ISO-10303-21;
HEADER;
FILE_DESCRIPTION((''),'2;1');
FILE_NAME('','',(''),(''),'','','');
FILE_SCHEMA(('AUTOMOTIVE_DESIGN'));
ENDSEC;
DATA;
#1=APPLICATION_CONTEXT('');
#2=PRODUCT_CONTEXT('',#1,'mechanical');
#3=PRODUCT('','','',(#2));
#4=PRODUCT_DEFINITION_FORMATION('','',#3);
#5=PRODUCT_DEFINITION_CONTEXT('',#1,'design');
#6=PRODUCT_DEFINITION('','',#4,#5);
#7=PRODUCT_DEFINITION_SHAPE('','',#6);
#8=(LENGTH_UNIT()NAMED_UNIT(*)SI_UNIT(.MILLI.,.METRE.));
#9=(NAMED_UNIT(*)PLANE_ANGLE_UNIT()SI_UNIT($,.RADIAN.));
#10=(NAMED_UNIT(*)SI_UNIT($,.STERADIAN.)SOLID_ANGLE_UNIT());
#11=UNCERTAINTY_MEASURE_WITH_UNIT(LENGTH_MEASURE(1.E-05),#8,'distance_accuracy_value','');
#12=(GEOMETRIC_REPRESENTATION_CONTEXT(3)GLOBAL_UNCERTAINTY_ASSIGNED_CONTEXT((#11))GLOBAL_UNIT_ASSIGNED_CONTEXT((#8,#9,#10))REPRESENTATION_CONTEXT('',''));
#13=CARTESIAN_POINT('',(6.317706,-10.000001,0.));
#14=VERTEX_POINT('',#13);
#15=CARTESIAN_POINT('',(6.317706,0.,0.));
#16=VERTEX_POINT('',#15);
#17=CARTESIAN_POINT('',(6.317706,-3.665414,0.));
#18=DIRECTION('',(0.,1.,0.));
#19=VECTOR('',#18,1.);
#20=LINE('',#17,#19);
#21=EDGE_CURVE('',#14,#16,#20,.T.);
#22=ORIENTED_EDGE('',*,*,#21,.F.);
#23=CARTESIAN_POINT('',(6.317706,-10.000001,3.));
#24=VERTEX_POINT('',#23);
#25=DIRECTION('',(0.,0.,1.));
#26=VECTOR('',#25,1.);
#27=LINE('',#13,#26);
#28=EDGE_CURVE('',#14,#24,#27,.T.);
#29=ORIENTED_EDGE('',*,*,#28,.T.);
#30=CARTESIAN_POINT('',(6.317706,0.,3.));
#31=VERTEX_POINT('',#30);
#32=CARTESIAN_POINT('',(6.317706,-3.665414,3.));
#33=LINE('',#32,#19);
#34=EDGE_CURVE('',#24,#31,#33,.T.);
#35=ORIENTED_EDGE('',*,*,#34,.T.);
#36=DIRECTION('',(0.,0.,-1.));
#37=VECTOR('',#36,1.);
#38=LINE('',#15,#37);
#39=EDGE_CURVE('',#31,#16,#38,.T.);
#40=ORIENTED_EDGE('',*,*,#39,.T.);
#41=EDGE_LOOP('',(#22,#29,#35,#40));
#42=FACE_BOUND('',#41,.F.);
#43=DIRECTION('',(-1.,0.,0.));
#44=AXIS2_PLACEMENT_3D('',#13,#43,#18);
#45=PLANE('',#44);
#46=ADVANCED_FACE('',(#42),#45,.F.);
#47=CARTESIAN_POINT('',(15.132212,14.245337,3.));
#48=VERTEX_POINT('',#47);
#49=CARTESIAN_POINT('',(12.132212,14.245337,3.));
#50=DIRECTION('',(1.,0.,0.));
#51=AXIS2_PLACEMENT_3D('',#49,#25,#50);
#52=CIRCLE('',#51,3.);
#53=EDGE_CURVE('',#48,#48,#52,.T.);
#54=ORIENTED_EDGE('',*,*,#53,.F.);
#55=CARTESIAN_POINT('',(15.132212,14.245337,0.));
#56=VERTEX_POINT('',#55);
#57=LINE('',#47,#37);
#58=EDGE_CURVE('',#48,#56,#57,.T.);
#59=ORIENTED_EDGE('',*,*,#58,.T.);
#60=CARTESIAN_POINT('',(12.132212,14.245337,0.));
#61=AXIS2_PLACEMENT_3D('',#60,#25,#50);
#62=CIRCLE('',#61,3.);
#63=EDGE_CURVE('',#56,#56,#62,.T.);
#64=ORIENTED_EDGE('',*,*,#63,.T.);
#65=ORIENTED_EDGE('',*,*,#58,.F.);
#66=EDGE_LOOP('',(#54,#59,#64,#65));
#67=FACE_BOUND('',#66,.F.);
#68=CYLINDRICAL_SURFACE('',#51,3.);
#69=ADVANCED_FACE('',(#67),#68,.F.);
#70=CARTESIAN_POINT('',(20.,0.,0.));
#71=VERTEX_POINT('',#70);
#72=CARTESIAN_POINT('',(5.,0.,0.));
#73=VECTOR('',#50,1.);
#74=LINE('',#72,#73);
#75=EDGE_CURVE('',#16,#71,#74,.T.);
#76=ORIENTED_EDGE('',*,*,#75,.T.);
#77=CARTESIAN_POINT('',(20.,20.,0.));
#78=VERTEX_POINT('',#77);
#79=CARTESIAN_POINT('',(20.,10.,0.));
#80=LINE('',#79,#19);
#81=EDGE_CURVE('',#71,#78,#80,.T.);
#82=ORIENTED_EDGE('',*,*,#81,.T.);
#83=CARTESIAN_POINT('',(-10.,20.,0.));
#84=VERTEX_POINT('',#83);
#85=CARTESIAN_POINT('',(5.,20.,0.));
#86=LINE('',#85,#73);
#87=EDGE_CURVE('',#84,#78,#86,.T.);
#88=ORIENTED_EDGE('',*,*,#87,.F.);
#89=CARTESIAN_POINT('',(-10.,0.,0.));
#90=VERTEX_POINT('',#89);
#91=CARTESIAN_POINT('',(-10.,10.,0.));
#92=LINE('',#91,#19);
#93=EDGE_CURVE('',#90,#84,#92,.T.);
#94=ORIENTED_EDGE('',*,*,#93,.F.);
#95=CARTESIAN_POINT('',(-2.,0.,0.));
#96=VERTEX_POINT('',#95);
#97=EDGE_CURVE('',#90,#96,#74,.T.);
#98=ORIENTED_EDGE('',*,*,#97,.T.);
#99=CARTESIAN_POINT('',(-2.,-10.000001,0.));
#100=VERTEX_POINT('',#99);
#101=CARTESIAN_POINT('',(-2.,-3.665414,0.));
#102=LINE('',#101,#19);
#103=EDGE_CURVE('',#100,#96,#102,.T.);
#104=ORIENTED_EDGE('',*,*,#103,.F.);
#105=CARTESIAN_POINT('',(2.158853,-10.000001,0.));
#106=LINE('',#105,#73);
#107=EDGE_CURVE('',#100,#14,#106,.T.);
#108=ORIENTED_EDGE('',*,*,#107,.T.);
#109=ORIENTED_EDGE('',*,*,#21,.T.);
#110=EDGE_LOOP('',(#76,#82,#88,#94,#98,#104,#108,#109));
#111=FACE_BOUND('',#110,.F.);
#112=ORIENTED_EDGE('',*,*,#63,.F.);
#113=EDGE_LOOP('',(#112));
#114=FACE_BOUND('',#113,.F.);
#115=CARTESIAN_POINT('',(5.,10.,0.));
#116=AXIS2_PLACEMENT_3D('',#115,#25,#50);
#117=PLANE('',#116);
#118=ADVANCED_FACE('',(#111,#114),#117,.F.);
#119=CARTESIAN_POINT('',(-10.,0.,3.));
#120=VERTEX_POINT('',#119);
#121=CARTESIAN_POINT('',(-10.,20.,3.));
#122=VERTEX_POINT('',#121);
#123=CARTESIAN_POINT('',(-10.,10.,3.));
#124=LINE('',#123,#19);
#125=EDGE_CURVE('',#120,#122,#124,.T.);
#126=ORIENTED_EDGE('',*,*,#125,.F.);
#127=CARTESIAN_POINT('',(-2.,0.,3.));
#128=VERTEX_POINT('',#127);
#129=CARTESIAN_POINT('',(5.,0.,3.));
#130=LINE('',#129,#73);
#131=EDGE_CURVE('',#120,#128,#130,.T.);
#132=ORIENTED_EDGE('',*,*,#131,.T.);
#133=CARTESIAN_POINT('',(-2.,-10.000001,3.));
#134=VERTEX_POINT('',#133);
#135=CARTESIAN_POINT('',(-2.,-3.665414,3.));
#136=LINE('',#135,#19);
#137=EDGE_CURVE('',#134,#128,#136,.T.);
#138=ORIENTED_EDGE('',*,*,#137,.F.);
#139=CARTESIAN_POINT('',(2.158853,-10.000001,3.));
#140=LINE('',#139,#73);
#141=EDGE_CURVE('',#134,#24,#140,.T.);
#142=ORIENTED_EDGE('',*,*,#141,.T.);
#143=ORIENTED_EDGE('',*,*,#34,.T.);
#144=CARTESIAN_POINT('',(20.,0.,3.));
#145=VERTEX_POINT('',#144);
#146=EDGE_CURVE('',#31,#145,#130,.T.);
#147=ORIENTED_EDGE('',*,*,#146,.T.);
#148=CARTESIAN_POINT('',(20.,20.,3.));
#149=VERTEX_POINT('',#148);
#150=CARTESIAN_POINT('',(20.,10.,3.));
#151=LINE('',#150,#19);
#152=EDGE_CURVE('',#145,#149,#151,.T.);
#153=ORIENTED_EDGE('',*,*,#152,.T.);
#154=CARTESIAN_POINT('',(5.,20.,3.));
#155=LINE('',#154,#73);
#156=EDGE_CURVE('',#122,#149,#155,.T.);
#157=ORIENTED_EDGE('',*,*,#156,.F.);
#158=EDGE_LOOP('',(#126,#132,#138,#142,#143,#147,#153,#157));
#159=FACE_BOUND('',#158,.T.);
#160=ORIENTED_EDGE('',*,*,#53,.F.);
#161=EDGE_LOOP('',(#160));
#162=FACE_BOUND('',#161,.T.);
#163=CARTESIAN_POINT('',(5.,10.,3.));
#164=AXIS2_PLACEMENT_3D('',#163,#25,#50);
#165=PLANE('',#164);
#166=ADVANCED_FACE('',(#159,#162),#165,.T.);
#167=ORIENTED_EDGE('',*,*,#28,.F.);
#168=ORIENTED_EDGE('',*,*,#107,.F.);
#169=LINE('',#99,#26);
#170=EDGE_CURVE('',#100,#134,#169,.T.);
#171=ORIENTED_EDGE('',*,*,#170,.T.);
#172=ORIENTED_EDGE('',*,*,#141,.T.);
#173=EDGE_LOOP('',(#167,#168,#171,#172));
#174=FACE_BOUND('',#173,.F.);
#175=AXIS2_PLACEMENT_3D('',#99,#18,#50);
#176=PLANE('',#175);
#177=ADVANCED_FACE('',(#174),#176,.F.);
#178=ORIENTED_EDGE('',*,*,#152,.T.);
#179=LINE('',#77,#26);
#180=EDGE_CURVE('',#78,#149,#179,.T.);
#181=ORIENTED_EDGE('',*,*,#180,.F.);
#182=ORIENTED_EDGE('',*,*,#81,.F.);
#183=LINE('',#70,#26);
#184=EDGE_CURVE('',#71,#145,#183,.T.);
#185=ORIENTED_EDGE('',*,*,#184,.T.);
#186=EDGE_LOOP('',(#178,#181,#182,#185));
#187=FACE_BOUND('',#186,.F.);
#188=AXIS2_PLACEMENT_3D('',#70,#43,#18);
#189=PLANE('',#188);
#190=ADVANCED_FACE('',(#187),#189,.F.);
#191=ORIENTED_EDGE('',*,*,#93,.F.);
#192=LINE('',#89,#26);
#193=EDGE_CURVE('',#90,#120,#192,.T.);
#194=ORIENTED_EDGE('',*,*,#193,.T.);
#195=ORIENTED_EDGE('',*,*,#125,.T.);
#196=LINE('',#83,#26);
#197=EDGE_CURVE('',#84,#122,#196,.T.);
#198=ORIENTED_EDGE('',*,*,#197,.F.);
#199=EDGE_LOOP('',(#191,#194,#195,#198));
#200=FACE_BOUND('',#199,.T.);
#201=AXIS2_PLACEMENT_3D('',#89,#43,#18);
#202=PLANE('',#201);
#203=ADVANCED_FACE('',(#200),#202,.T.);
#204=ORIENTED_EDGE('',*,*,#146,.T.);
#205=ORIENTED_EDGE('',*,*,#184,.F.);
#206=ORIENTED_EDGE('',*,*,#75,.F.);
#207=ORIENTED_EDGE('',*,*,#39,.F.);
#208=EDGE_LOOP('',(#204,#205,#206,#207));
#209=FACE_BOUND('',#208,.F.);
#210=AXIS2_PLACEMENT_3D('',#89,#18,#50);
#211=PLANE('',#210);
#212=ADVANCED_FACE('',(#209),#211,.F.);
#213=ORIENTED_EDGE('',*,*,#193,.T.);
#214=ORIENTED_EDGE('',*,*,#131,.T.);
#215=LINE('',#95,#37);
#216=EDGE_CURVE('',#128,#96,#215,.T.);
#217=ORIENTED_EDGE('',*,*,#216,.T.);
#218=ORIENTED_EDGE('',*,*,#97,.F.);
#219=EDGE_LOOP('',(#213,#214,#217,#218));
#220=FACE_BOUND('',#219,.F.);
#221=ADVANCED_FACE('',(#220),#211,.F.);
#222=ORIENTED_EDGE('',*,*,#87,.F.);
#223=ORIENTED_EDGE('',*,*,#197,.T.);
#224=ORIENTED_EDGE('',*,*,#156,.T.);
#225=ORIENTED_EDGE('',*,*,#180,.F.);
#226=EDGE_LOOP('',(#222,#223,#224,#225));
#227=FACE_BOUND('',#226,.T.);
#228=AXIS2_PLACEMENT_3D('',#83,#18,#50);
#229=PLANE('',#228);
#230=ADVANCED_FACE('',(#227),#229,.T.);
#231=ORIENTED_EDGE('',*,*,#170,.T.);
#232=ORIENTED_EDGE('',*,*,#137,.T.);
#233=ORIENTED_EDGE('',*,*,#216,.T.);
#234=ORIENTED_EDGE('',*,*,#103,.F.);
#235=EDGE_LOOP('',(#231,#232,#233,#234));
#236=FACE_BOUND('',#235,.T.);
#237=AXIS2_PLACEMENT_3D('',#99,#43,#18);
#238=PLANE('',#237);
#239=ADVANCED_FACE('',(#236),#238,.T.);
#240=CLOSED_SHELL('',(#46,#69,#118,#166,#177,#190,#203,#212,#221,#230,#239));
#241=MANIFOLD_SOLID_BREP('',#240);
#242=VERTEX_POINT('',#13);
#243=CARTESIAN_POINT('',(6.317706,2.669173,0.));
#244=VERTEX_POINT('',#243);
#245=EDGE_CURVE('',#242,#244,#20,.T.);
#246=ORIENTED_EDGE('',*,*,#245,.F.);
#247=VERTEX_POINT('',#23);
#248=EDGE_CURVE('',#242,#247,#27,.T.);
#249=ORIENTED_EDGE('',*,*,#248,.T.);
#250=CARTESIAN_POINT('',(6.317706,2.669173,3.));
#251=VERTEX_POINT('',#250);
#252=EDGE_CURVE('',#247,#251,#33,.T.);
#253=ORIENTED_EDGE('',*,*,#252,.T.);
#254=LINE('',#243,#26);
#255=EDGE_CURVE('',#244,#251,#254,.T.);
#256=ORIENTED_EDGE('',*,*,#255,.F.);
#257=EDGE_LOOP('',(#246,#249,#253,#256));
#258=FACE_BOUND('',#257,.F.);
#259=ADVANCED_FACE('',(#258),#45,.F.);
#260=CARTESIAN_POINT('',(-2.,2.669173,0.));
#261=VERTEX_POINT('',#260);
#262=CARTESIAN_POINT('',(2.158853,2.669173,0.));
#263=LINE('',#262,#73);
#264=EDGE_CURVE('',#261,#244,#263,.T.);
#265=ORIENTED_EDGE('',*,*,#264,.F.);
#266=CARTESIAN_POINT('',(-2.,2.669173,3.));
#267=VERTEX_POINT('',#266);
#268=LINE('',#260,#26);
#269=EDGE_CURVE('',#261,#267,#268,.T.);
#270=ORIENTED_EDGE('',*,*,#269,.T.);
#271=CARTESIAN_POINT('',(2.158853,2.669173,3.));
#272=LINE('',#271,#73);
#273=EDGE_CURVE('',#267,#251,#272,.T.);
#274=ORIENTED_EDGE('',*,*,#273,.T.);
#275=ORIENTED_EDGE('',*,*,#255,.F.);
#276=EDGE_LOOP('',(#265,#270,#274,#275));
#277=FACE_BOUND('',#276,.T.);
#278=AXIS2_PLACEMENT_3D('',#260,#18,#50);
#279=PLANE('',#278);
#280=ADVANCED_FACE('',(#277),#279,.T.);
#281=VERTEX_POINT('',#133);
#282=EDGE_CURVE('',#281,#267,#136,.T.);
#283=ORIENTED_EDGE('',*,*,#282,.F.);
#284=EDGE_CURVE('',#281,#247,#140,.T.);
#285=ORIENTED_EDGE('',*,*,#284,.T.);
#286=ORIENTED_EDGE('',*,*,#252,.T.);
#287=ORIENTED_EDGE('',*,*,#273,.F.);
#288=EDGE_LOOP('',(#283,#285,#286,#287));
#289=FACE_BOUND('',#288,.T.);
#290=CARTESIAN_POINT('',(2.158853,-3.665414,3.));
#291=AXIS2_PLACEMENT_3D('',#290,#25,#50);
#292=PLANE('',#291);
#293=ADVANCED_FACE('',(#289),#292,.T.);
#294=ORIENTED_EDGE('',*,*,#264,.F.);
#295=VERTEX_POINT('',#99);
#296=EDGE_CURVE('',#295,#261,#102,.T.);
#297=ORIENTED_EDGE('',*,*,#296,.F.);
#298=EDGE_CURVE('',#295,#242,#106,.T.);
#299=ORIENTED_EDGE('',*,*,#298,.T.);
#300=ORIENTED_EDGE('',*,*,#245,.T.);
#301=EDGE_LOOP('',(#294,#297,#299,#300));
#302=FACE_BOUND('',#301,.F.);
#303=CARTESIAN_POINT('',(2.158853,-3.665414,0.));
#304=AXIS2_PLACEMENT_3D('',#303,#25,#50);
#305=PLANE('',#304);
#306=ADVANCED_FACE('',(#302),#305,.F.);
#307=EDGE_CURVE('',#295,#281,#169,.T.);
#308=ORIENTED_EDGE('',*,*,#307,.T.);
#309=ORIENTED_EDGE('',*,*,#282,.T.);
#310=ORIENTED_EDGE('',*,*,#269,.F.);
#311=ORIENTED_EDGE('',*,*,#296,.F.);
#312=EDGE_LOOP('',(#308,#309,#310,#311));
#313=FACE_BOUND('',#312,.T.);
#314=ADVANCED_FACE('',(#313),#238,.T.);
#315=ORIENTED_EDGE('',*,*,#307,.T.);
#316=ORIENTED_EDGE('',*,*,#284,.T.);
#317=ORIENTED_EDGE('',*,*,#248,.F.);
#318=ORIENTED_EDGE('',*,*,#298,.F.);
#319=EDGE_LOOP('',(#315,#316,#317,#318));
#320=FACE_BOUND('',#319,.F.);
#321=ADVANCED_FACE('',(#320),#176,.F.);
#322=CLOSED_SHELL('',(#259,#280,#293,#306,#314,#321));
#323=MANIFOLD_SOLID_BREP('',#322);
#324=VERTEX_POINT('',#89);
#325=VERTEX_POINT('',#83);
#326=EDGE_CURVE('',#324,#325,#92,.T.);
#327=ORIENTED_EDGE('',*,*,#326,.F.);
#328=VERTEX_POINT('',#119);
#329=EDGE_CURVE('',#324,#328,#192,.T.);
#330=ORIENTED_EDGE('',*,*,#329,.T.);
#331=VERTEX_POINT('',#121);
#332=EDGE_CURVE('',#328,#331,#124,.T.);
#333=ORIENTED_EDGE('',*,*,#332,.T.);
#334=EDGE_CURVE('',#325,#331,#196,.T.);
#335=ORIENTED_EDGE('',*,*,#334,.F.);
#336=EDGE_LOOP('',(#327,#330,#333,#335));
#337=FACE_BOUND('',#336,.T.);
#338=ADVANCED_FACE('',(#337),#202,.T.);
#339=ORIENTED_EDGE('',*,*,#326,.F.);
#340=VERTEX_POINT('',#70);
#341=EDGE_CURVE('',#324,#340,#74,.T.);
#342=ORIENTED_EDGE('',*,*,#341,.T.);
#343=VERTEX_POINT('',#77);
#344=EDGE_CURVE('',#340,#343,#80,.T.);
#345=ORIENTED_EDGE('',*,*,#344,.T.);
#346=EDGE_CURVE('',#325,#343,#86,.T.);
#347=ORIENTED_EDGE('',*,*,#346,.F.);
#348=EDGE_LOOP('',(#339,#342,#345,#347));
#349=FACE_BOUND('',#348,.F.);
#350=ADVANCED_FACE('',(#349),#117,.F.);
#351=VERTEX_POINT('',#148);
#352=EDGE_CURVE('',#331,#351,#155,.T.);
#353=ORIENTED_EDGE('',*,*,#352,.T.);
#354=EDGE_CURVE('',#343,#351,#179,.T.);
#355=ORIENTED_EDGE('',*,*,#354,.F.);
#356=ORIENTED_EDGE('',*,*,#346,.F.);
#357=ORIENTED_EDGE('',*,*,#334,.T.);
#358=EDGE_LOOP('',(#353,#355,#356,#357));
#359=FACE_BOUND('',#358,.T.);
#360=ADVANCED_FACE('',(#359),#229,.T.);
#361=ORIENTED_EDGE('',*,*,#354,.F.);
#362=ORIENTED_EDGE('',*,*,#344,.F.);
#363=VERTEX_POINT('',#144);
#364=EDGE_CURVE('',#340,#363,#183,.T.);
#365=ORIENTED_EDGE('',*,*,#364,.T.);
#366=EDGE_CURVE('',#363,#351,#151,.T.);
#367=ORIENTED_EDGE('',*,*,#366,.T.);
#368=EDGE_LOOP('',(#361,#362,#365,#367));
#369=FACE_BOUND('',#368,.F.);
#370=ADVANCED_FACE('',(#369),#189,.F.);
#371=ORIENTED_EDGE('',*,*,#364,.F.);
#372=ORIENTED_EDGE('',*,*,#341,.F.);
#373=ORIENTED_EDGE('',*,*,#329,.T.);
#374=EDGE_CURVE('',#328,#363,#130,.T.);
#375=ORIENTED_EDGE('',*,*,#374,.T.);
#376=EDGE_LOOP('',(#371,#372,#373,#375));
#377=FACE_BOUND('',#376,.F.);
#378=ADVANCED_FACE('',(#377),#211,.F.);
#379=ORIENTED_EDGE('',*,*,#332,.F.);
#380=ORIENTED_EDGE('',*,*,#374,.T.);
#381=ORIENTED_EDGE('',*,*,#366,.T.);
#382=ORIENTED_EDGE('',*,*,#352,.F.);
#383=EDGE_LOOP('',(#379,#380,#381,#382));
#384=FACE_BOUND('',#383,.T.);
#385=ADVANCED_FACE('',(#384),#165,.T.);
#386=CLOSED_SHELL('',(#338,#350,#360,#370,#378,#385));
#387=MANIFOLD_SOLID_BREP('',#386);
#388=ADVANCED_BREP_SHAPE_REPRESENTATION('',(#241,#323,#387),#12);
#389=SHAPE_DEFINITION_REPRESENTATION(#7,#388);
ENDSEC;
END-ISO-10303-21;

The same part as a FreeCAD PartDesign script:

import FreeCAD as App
import Part
import Sketcher

V = App.Vector
Q = App.Units.Quantity


def add_polygon(sketch, points):
    """Adds a closed chain of lines whose ends are joined by coincident constraints."""
    first, n = sketch.GeometryCount, len(points)
    for a, b in zip(points, points[1:] + points[:1]):
        sketch.addGeometry(Part.LineSegment(App.Vector(*a, 0), App.Vector(*b, 0)), False)
    for i in range(n):
        sketch.addConstraint(Sketcher.Constraint("Coincident", first + i, 2, first + (i + 1) % n, 1))

doc = App.newDocument("Part")
body = doc.addObject("PartDesign::Body", "Body")

sketch1 = body.newObject("Sketcher::SketchObject", "Sketch")
sketch1.AttachmentSupport = (doc.getObject("XY_Plane"), [""])
sketch1.MapMode = "FlatFace"
add_polygon(sketch1, [(-2, 3), (-2, -10), (6, -10), (6, 3)])
sketch1.addConstraint(Sketcher.Constraint("Vertical", 0))
sketch1.addConstraint(Sketcher.Constraint("Horizontal", 1))
sketch1.addConstraint(Sketcher.Constraint("Vertical", 2))
sketch1.addConstraint(Sketcher.Constraint("Horizontal", 3))
sketch1.addConstraint(Sketcher.Constraint("DistanceX", 0, 2, -1, 1, Q("2 mm")))
sketch1.addConstraint(Sketcher.Constraint("DistanceY", 0, 2, -1, 1, Q("10.000001 mm")))
sketch1.addConstraint(Sketcher.Constraint("DistanceX", 1, 1, 1, 2, Q("8.317706 mm")))
sketch1.addConstraint(Sketcher.Constraint("DistanceY", 0, 2, 0, 1, Q("12.669173 mm")))
pad1 = body.newObject("PartDesign::Pad", "Pad")
pad1.Profile = sketch1
pad1.Length = 3
body2 = doc.addObject("PartDesign::Body", "Body001")

sketch2 = body2.newObject("Sketcher::SketchObject", "Sketch001")
sketch2.AttachmentSupport = (doc.getObject("XY_Plane001"), [""])
sketch2.MapMode = "FlatFace"
add_polygon(sketch2, [(-10, 20), (-10, 0), (20, 0), (20, 20)])
sketch2.addConstraint(Sketcher.Constraint("Vertical", 0))
sketch2.addConstraint(Sketcher.Constraint("Horizontal", 1))
sketch2.addConstraint(Sketcher.Constraint("Vertical", 2))
sketch2.addConstraint(Sketcher.Constraint("Horizontal", 3))
sketch2.addConstraint(Sketcher.Constraint("PointOnObject", 0, 2, -1))
sketch2.addConstraint(Sketcher.Constraint("DistanceX", 1, 1, 1, 2, Q("30 mm")))
sketch2.addConstraint(Sketcher.Constraint("DistanceY", 0, 2, 0, 1, Q("20 mm")))
sketch2.addConstraint(Sketcher.Constraint("DistanceX", 0, 2, -1, 1, Q("10 mm")))
pad2 = body2.newObject("PartDesign::Pad", "Pad001")
pad2.Profile = sketch2
pad2.Length = 3
body3 = doc.addObject("PartDesign::Body", "Body002")

sketch3 = body3.newObject("Sketcher::SketchObject", "Sketch002")
sketch3.AttachmentSupport = (doc.getObject("XY_Plane002"), [""])
sketch3.MapMode = "FlatFace"
add_polygon(sketch3, [(-10, 20), (-10, 0), (20, 0), (20, 20)])
sketch3.addConstraint(Sketcher.Constraint("Vertical", 0))
sketch3.addConstraint(Sketcher.Constraint("Horizontal", 1))
sketch3.addConstraint(Sketcher.Constraint("Vertical", 2))
sketch3.addConstraint(Sketcher.Constraint("Horizontal", 3))
sketch3.addConstraint(Sketcher.Constraint("PointOnObject", 0, 2, -1))
sketch3.addConstraint(Sketcher.Constraint("DistanceX", 1, 1, 1, 2, Q("30 mm")))
sketch3.addConstraint(Sketcher.Constraint("DistanceY", 0, 2, 0, 1, Q("20 mm")))
sketch3.addConstraint(Sketcher.Constraint("DistanceX", 0, 2, -1, 1, Q("10 mm")))
pad3 = body3.newObject("PartDesign::Pad", "Pad002")
pad3.Profile = sketch3
pad3.Length = 3
body4 = doc.addObject("PartDesign::Body", "Body003")

sketch4 = body4.newObject("Sketcher::SketchObject", "Sketch003")
sketch4.AttachmentSupport = (doc.getObject("XY_Plane003"), [""])
sketch4.MapMode = "FlatFace"
add_polygon(sketch4, [(-2, 3), (-2, -10), (6, -10), (6, 3)])
sketch4.addConstraint(Sketcher.Constraint("Vertical", 0))
sketch4.addConstraint(Sketcher.Constraint("Horizontal", 1))
sketch4.addConstraint(Sketcher.Constraint("Vertical", 2))
sketch4.addConstraint(Sketcher.Constraint("Horizontal", 3))
sketch4.addConstraint(Sketcher.Constraint("DistanceX", 0, 2, -1, 1, Q("2 mm")))
sketch4.addConstraint(Sketcher.Constraint("DistanceY", 0, 2, -1, 1, Q("10.000001 mm")))
sketch4.addConstraint(Sketcher.Constraint("DistanceX", 1, 1, 1, 2, Q("8.317706 mm")))
sketch4.addConstraint(Sketcher.Constraint("DistanceY", 0, 2, 0, 1, Q("12.669173 mm")))
pad4 = body4.newObject("PartDesign::Pad", "Pad003")
pad4.Profile = sketch4
pad4.Length = 3
doc.recompute()

boolean = body4.newObject("PartDesign::Boolean", "Boolean")
boolean.Type = "Fuse"
boolean.addObjects([body3])

sketch5 = body4.newObject("Sketcher::SketchObject", "Sketch004")
sketch5.AttachmentSupport = (doc.getObject("XY_Plane003"), [""])
sketch5.MapMode = "FlatFace"
sketch5.AttachmentOffset = App.Placement(V(0, 0, 3), App.Rotation())
sketch5.addGeometry(Part.Circle(V(12.1, 14.2, 0), V(0, 0, 1), 3), False)
sketch5.addConstraint(Sketcher.Constraint("Diameter", 0, Q("6 mm")))
sketch5.addConstraint(Sketcher.Constraint("DistanceX", -1, 1, 0, 3, Q("12.132212 mm")))
sketch5.addConstraint(Sketcher.Constraint("DistanceY", -1, 1, 0, 3, Q("14.245337 mm")))
pocket1 = body4.newObject("PartDesign::Pocket", "Pocket")
pocket1.Profile = sketch5
pocket1.Length = 25

doc.recompute()
